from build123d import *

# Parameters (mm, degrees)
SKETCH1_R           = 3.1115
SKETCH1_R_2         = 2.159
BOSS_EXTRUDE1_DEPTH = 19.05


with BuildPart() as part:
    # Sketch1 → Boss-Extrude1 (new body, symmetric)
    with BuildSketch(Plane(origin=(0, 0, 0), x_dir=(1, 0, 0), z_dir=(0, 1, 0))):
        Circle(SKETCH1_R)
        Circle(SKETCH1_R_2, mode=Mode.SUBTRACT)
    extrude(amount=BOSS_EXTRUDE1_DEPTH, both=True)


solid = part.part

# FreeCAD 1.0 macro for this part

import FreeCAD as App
import Part
import Sketcher
Q = App.Units.Quantity

doc = App.newDocument("Part")
params = doc.addObject("Spreadsheet::Sheet", "Params")
for row, (alias, value) in enumerate([
    ("sketch1_diameter", "0.17 in"),
    ("sketch1_diameter2", "0.245 in"),
    ("pad1_length", "1.5 in"),
], start=1):
    params.set(f"A{row}", alias)
    params.set(f"B{row}", "=" + value)
    params.setAlias(f"B{row}", alias)

body = doc.addObject("PartDesign::Body", "Body")

# Sketch on XZ plane
sketch1 = body.newObject("Sketcher::SketchObject", "Sketch")
sketch1.AttachmentSupport = (doc.getObject("XZ_Plane"), [""])
sketch1.MapMode = "FlatFace"
sketch1.addGeometry([
    Part.Circle(App.Vector(0, 0, 0), App.Vector(0, 0, 1), 3.1115),
    Part.Circle(App.Vector(0, 0, 0), App.Vector(0, 0, 1), 2.159),
], False)
sketch1.addConstraint([
    Sketcher.Constraint("Coincident", 0, 3, -1, 1),
    Sketcher.Constraint("Coincident", 1, 3, -1, 1),
    Sketcher.Constraint("Diameter", 1, Q("0.17 in")),
    Sketcher.Constraint("Diameter", 0, Q("0.245 in")),
])
sketch1.setExpression("Constraints[2]", "Params.sketch1_diameter")
sketch1.setExpression("Constraints[3]", "Params.sketch1_diameter2")
pad1 = body.newObject("PartDesign::Pad", "Pad")
pad1.Profile = sketch1
pad1.setExpression("Length", "Params.pad1_length")
pad1.Midplane = True

doc.recompute()
